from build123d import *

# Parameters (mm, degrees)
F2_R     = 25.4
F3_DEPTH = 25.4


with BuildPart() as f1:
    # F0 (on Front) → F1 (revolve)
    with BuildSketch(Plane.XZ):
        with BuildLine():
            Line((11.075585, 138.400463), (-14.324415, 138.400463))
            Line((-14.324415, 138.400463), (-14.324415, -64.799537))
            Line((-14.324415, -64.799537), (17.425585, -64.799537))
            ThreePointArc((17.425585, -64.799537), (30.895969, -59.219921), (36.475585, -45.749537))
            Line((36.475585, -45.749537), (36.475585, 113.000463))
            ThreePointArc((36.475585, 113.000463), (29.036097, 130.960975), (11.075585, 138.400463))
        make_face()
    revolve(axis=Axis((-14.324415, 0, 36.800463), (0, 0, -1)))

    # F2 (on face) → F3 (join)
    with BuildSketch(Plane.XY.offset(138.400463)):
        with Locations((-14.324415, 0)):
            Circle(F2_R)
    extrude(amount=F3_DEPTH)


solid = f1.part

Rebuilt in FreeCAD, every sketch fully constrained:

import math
import FreeCAD as App
import Part
import Sketcher

V = App.Vector
Q = App.Units.Quantity

doc = App.newDocument("Part")
body = doc.addObject("PartDesign::Body", "Body")

# Sketch on XZ plane
sketch1 = doc.addObject("Sketcher::SketchObject", "Sketch")
body.addObject(sketch1)
sketch1.AttachmentSupport = (doc.XZ_Plane, [""])
sketch1.MapMode = "FlatFace"
sketch1.addGeometry([
    Part.LineSegment(V(11, 138, 0), V(-14, 138, 0)),  # 0
    Part.LineSegment(V(-14, 138, 0), V(-14, -65, 0)),  # 1
    Part.LineSegment(V(-14, -65, 0), V(17, -65, 0)),  # 2
    Part.ArcOfCircle(Part.Circle(V(17, -46, 0), V(0, 0, 1), 19), math.radians(-90), math.radians(0)),  # 3
    Part.LineSegment(V(36, -46, 0), V(36, 113, 0)),  # 4
    Part.ArcOfCircle(Part.Circle(V(11, 113, 0), V(0, 0, 1), 25), math.radians(0), math.radians(90)),  # 5
], False)
sketch1.addGeometry(Part.LineSegment(V(-14, 138, 0), V(-14, -65, 0)), True)  # axis
sketch1.addConstraint([
    Sketcher.Constraint("Coincident", 0, 2, 1, 1),
    Sketcher.Constraint("Coincident", 1, 2, 2, 1),
    Sketcher.Constraint("Tangent", 2, 2, 3, 1),
    Sketcher.Constraint("Tangent", 3, 2, 4, 1),
    Sketcher.Constraint("Tangent", 4, 2, 5, 1),
    Sketcher.Constraint("Tangent", 5, 2, 0, 1),
    Sketcher.Constraint("Horizontal", 0),
    Sketcher.Constraint("Vertical", 1),
    Sketcher.Constraint("Horizontal", 2),
    Sketcher.Constraint("Vertical", 4),
    Sketcher.Constraint("Vertical", 6),
    Sketcher.Constraint("Coincident", 6, 1, 0, 2),
    Sketcher.Constraint("Horizontal", 2, 2, 6, 2),
    Sketcher.Constraint("Radius", 5, Q("1 in")),
    Sketcher.Constraint("DistanceX", 0, 2, 0, 1, Q("1 in")),
    Sketcher.Constraint("DistanceY", 1, 2, 1, 1, Q("8 in")),
    Sketcher.Constraint("Radius", 3, Q("0.75 in")),
    Sketcher.Constraint("DistanceX", -1, 1, 3, 3, 17.425584),
    Sketcher.Constraint("DistanceY", 3, 3, -1, 1, 45.749536),
])
revolution = doc.addObject("PartDesign::Revolution", "Revolution")
body.addObject(revolution)
revolution.Profile = sketch1
revolution.ReferenceAxis = (sketch1, ["Axis0"])
revolution.Angle = 360

# Sketch on XY plane
sketch2 = doc.addObject("Sketcher::SketchObject", "Sketch001")
body.addObject(sketch2)
sketch2.AttachmentSupport = (doc.XY_Plane, [""])
sketch2.MapMode = "FlatFace"
sketch2.AttachmentOffset = App.Placement(V(0, 0, 138.400463), App.Rotation())
sketch2.addGeometry(Part.Circle(V(-14, 0, 0), V(0, 0, 1), 25), False)
sketch2.addConstraint([
    Sketcher.Constraint("PointOnObject", 0, 3, -1),
    Sketcher.Constraint("Diameter", 0, Q("2 in")),
    Sketcher.Constraint("DistanceX", 0, 3, -1, 1, 14.324415),
])
pad1 = doc.addObject("PartDesign::Pad", "Pad")
body.addObject(pad1)
pad1.Profile = sketch2
pad1.Length = Q("1 in")

doc.recompute()
